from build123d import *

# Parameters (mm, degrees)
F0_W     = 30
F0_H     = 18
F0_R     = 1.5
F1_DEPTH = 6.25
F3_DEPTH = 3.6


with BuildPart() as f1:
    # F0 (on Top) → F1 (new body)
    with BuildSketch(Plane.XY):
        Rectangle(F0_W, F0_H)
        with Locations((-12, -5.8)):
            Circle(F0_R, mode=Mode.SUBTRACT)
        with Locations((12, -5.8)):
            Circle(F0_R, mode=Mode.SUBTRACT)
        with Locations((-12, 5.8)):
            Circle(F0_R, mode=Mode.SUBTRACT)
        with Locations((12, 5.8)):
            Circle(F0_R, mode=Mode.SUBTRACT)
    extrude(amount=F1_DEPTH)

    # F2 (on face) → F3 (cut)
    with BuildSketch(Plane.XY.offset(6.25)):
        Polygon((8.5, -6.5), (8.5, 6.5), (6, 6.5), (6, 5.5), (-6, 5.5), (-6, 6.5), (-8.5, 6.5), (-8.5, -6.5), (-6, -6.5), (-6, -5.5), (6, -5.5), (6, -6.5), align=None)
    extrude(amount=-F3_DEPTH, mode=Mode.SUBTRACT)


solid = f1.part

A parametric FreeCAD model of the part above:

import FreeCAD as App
import Part
import Sketcher

V = App.Vector
Q = App.Units.Quantity


def add_polygon(sketch, points):
    """Adds a closed chain of lines whose ends are joined by coincident constraints."""
    first, n = sketch.GeometryCount, len(points)
    for a, b in zip(points, points[1:] + points[:1]):
        sketch.addGeometry(Part.LineSegment(App.Vector(*a, 0), App.Vector(*b, 0)), False)
    for i in range(n):
        sketch.addConstraint(Sketcher.Constraint("Coincident", first + i, 2, first + (i + 1) % n, 1))

doc = App.newDocument("Part")
body = doc.addObject("PartDesign::Body", "Body")

# Sketch on XY plane
sketch1 = body.newObject("Sketcher::SketchObject", "Sketch")
sketch1.AttachmentSupport = (doc.getObject("XY_Plane"), [""])
sketch1.MapMode = "FlatFace"
add_polygon(sketch1, [(-15, 9), (-15, -9), (15, -9), (15, 9)])  # lines 0-3
sketch1.addGeometry(Part.Circle(V(-12, -5.8, 0), V(0, 0, 1), 1.5), False)  # 4
sketch1.addGeometry(Part.Circle(V(12, -5.8, 0), V(0, 0, 1), 1.5), False)  # 5
sketch1.addGeometry(Part.Circle(V(-12, 5.8, 0), V(0, 0, 1), 1.5), False)  # 6
sketch1.addGeometry(Part.Circle(V(12, 5.8, 0), V(0, 0, 1), 1.5), False)  # 7
sketch1.addConstraint(Sketcher.Constraint("Vertical", 0))
sketch1.addConstraint(Sketcher.Constraint("Horizontal", 1))
sketch1.addConstraint(Sketcher.Constraint("Vertical", 2))
sketch1.addConstraint(Sketcher.Constraint("Horizontal", 3))
sketch1.addConstraint(Sketcher.Constraint("Equal", 4, 5))
sketch1.addConstraint(Sketcher.Constraint("Equal", 5, 6))
sketch1.addConstraint(Sketcher.Constraint("Equal", 6, 7))
sketch1.addConstraint(Sketcher.Constraint("Symmetric", 5, 3, 6, 3, -1, 1))
sketch1.addConstraint(Sketcher.Constraint("Symmetric", 4, 3, 7, 3, -1, 1))
sketch1.addConstraint(Sketcher.Constraint("Symmetric", 0, 2, 2, 2, -1, 1))
sketch1.addConstraint(Sketcher.Constraint("Symmetric", 4, 3, 5, 3, -2))
sketch1.addConstraint(Sketcher.Constraint("Diameter", 4, Q("3 mm")))
sketch1.addConstraint(Sketcher.Constraint("DistanceX", 1, 1, 1, 2, Q("30 mm")))
sketch1.addConstraint(Sketcher.Constraint("DistanceY", 0, 2, 0, 1, Q("18 mm")))
sketch1.addConstraint(Sketcher.Constraint("DistanceX", 4, 3, -1, 1, Q("12 mm")))
sketch1.addConstraint(Sketcher.Constraint("DistanceY", 4, 3, -1, 1, Q("5.8 mm")))
pad1 = body.newObject("PartDesign::Pad", "Pad")
pad1.Profile = sketch1
pad1.Length = 6.25

# Sketch on XY plane
sketch2 = body.newObject("Sketcher::SketchObject", "Sketch001")
sketch2.AttachmentSupport = (doc.getObject("XY_Plane"), [""])
sketch2.MapMode = "FlatFace"
sketch2.AttachmentOffset = App.Placement(V(0, 0, 6.25), App.Rotation())
add_polygon(sketch2, [(8.5, -6.5), (8.5, 6.5), (6, 6.5), (6, 5.5), (-6, 5.5), (-6, 6.5), (-8.5, 6.5), (-8.5, -6.5), (-6, -6.5), (-6, -5.5), (6, -5.5), (6, -6.5)])  # lines 0-11
sketch2.addConstraint(Sketcher.Constraint("Vertical", 0))
sketch2.addConstraint(Sketcher.Constraint("Horizontal", 1))
sketch2.addConstraint(Sketcher.Constraint("Vertical", 2))
sketch2.addConstraint(Sketcher.Constraint("Horizontal", 3))
sketch2.addConstraint(Sketcher.Constraint("Vertical", 4))
sketch2.addConstraint(Sketcher.Constraint("Horizontal", 5))
sketch2.addConstraint(Sketcher.Constraint("Vertical", 6))
sketch2.addConstraint(Sketcher.Constraint("Horizontal", 7))
sketch2.addConstraint(Sketcher.Constraint("Vertical", 8))
sketch2.addConstraint(Sketcher.Constraint("Horizontal", 9))
sketch2.addConstraint(Sketcher.Constraint("Vertical", 10))
sketch2.addConstraint(Sketcher.Constraint("Horizontal", 11))
sketch2.addConstraint(Sketcher.Constraint("Symmetric", 0, 2, 6, 2, -1, 1))
sketch2.addConstraint(Sketcher.Constraint("Symmetric", 2, 2, 8, 2, -1, 1))
sketch2.addConstraint(Sketcher.Constraint("Symmetric", 4, 2, 10, 2, -1, 1))
sketch2.addConstraint(Sketcher.Constraint("Symmetric", 1, 2, 4, 2, -2))
sketch2.addConstraint(Sketcher.Constraint("DistanceX", 3, 2, 3, 1, Q("12 mm")))
sketch2.addConstraint(Sketcher.Constraint("DistanceY", 0, 1, 0, 2, Q("13 mm")))
sketch2.addConstraint(Sketcher.Constraint("DistanceY", 2, 2, 2, 1, Q("1 mm")))
sketch2.addConstraint(Sketcher.Constraint("DistanceX", 1, 2, 1, 1, Q("2.5 mm")))
pocket1 = body.newObject("PartDesign::Pocket", "Pocket")
pocket1.Profile = sketch2
pocket1.Length = 3.6

doc.recompute()
